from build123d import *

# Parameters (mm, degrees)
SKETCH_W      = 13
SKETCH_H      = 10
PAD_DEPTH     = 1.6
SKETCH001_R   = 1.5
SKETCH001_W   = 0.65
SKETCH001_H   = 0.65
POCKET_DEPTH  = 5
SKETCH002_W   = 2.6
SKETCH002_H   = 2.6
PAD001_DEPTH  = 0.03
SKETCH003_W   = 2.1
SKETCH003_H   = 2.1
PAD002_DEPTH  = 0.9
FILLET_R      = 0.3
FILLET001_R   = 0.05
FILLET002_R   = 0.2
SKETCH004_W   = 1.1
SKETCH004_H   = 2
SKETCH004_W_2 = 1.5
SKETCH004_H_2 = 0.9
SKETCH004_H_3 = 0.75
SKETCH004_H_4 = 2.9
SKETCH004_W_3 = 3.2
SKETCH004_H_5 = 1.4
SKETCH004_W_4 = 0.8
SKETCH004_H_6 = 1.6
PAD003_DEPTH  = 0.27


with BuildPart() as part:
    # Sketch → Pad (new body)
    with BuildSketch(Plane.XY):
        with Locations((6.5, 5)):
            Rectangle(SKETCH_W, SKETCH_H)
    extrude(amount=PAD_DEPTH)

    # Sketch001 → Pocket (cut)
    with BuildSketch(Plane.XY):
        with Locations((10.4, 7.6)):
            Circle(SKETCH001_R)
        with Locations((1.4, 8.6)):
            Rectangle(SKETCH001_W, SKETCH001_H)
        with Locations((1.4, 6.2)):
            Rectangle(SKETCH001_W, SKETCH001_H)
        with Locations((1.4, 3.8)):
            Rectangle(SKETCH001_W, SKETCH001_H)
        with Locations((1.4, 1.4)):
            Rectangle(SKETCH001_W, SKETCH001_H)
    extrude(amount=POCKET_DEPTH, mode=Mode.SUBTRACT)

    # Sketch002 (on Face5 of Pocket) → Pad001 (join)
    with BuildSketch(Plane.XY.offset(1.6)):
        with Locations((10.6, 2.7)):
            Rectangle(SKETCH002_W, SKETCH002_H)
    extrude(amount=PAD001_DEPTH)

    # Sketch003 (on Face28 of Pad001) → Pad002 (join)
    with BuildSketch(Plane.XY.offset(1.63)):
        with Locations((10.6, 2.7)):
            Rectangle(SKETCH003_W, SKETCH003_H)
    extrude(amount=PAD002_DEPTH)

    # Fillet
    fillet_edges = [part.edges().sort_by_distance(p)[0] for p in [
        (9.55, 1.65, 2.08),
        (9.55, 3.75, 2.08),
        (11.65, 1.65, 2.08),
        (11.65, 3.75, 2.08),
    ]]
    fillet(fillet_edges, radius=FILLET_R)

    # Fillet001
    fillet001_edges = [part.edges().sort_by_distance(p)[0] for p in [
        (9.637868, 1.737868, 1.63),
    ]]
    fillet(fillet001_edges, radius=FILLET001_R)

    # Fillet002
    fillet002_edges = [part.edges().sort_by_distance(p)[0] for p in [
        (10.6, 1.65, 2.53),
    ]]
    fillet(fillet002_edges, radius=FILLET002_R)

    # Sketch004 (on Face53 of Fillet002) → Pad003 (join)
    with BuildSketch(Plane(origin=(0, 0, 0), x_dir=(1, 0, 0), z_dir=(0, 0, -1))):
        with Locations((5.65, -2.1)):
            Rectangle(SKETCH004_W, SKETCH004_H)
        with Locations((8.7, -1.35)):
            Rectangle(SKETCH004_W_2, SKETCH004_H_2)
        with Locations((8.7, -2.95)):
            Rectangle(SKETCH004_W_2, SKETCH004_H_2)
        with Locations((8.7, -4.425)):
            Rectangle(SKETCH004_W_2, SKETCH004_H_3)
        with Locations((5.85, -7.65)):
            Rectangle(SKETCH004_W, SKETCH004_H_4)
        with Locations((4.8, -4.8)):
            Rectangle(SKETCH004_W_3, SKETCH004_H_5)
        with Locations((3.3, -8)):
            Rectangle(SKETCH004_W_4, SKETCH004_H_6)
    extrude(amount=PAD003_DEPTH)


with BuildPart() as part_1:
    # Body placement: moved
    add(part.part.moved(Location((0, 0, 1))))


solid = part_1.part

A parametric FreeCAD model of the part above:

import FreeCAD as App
import Part
import Sketcher


def edges_at(feature, points):
    """Names of the edges that pass closest to the given points."""
    edges = feature.Shape.Edges
    near = lambda p: min(range(len(edges)), key=lambda i: edges[i].distToShape(Part.Vertex(*p))[0])
    return sorted({f"Edge{near(p) + 1}" for p in points})


def add_polygon(sketch, points):
    """Adds a closed chain of lines whose ends are joined by coincident constraints."""
    first, n = sketch.GeometryCount, len(points)
    for a, b in zip(points, points[1:] + points[:1]):
        sketch.addGeometry(Part.LineSegment(App.Vector(*a, 0), App.Vector(*b, 0)), False)
    for i in range(n):
        sketch.addConstraint(Sketcher.Constraint("Coincident", first + i, 2, first + (i + 1) % n, 1))

doc = App.newDocument("Part")
body = doc.addObject("PartDesign::Body", "Body")

sketch1 = body.newObject("Sketcher::SketchObject", "Sketch")
sketch1.AttachmentSupport = (doc.getObject("XY_Plane"), [""])
sketch1.MapMode = "FlatFace"
add_polygon(sketch1, [(0, 10), (0, 0), (13, 0), (13, 10)])
sketch1.addConstraint([
    Sketcher.Constraint("Vertical", 0),
    Sketcher.Constraint("Horizontal", 1),
    Sketcher.Constraint("Vertical", 2),
    Sketcher.Constraint("Horizontal", 3),
    Sketcher.Constraint("Coincident", 0, 2, -1, 1),
    Sketcher.Constraint("DistanceX", 1, 1, 1, 2, 13.0),
    Sketcher.Constraint("DistanceY", 0, 2, 0, 1, 10.0),
])
pad1 = body.newObject("PartDesign::Pad", "Pad")
pad1.Profile = sketch1
pad1.Length = 1.6

sketch2 = body.newObject("Sketcher::SketchObject", "Sketch001")
sketch2.AttachmentSupport = (doc.getObject("XY_Plane"), [""])
sketch2.MapMode = "FlatFace"
sketch2.addGeometry(Part.Circle(App.Vector(10.4, 7.6, 0), App.Vector(0, 0, 1), 1.5), False)
add_polygon(sketch2, [(1.075, 8.925), (1.075, 8.275), (1.725, 8.275), (1.725, 8.925)])
add_polygon(sketch2, [(1.075, 6.525), (1.075, 5.875), (1.725, 5.875), (1.725, 6.525)])
add_polygon(sketch2, [(1.075, 4.125), (1.075, 3.475), (1.725, 3.475), (1.725, 4.125)])
add_polygon(sketch2, [(1.075, 1.725), (1.075, 1.075), (1.725, 1.075), (1.725, 1.725)])
sketch2.addConstraint([
    Sketcher.Constraint("Vertical", 1),
    Sketcher.Constraint("Horizontal", 2),
    Sketcher.Constraint("Vertical", 3),
    Sketcher.Constraint("Horizontal", 4),
    Sketcher.Constraint("Vertical", 5),
    Sketcher.Constraint("Horizontal", 6),
    Sketcher.Constraint("Vertical", 7),
    Sketcher.Constraint("Horizontal", 8),
    Sketcher.Constraint("Vertical", 9),
    Sketcher.Constraint("Horizontal", 10),
    Sketcher.Constraint("Vertical", 11),
    Sketcher.Constraint("Horizontal", 12),
    Sketcher.Constraint("Vertical", 13),
    Sketcher.Constraint("Horizontal", 14),
    Sketcher.Constraint("Vertical", 15),
    Sketcher.Constraint("Horizontal", 16),
    Sketcher.Constraint("Vertical", 4, 2, 5, 2),
    Sketcher.Constraint("Vertical", 3, 2, 6, 2),
    Sketcher.Constraint("Vertical", 8, 2, 9, 2),
    Sketcher.Constraint("Vertical", 7, 2, 10, 2),
    Sketcher.Constraint("Vertical", 12, 2, 13, 2),
    Sketcher.Constraint("Vertical", 11, 2, 14, 2),
    Sketcher.Constraint("Equal", 16, 1),
    Sketcher.Constraint("Equal", 3, 5),
    Sketcher.Constraint("Equal", 7, 9),
    Sketcher.Constraint("Equal", 11, 13),
    Sketcher.Constraint("Diameter", 0, 3.0),
    Sketcher.Constraint("DistanceX", 2, 1, 2, 2, 0.65),
    Sketcher.Constraint("DistanceX", -1, 1, 0, 3, 10.4),
    Sketcher.Constraint("DistanceY", -1, 1, 0, 3, 7.6),
    Sketcher.Constraint("DistanceY", 5, 2, 1, 2, 2.4),
    Sketcher.Constraint("DistanceY", 9, 2, 5, 2, 2.4),
    Sketcher.Constraint("DistanceY", 13, 2, 9, 2, 2.4),
    Sketcher.Constraint("DistanceX", -1, 1, 1, 2, 1.075),
    Sketcher.Constraint("DistanceY", -1, 1, 1, 2, 8.275),
])
pocket1 = body.newObject("PartDesign::Pocket", "Pocket")
pocket1.Profile = sketch2
pocket1.Length = 5
pocket1.Reversed = True

sketch3 = body.newObject("Sketcher::SketchObject", "Sketch002")
sketch3.AttachmentSupport = (doc.getObject("XY_Plane"), [""])
sketch3.MapMode = "FlatFace"
sketch3.AttachmentOffset = App.Placement(App.Vector(0, 0, 1.6), App.Rotation())
add_polygon(sketch3, [(9.3, 4), (9.3, 1.4), (11.9, 1.4), (11.9, 4)])
sketch3.addConstraint([
    Sketcher.Constraint("Vertical", 0),
    Sketcher.Constraint("Horizontal", 1),
    Sketcher.Constraint("Vertical", 2),
    Sketcher.Constraint("Horizontal", 3),
    Sketcher.Constraint("Equal", 3, 0),
    Sketcher.Constraint("DistanceX", 1, 1, 1, 2, 2.6),
    Sketcher.Constraint("DistanceY", -1, 1, 2, 2, 4.0),
    Sketcher.Constraint("DistanceX", -1, 1, 0, 2, 9.3),
])
pad2 = body.newObject("PartDesign::Pad", "Pad001")
pad2.Profile = sketch3
pad2.Length = 0.03

sketch4 = body.newObject("Sketcher::SketchObject", "Sketch003")
sketch4.AttachmentSupport = (doc.getObject("XY_Plane"), [""])
sketch4.MapMode = "FlatFace"
sketch4.AttachmentOffset = App.Placement(App.Vector(0, 0, 1.63), App.Rotation())
add_polygon(sketch4, [(9.55, 3.75), (9.55, 1.65), (11.65, 1.65), (11.65, 3.75)])
sketch4.addConstraint([
    Sketcher.Constraint("Vertical", 0),
    Sketcher.Constraint("Horizontal", 1),
    Sketcher.Constraint("Vertical", 2),
    Sketcher.Constraint("Horizontal", 3),
    Sketcher.Constraint("Equal", 3, 0),
    Sketcher.Constraint("DistanceX", 1, 1, 1, 2, 2.1),
    Sketcher.Constraint("DistanceX", -1, 1, 0, 2, 9.55),
    Sketcher.Constraint("DistanceY", -1, 1, 0, 2, 1.65),
])
pad3 = body.newObject("PartDesign::Pad", "Pad002")
pad3.Profile = sketch4
pad3.Length = 0.9
doc.recompute()

fillet = body.newObject("PartDesign::Fillet", "Fillet")
fillet.Base = (pad3, edges_at(pad3, [
    (9.55, 1.65, 2.08),
    (9.55, 3.75, 2.08),
    (11.65, 1.65, 2.08),
    (11.65, 3.75, 2.08),
]))
fillet.Radius = 0.3
doc.recompute()

fillet2 = body.newObject("PartDesign::Fillet", "Fillet001")
fillet2.Base = (fillet, edges_at(fillet, [(9.638, 1.738, 1.63)]))
fillet2.Radius = 0.05
doc.recompute()

fillet3 = body.newObject("PartDesign::Fillet", "Fillet002")
fillet3.Base = (fillet2, edges_at(fillet2, [(10.6, 1.65, 2.53)]))
fillet3.Radius = 0.2

sketch5 = body.newObject("Sketcher::SketchObject", "Sketch004")
sketch5.AttachmentSupport = (doc.getObject("XY_Plane"), [""])
sketch5.MapMode = "FlatFace"
add_polygon(sketch5, [(5.1, 1.1), (5.1, 3.1), (6.2, 3.1), (6.2, 1.1)])
add_polygon(sketch5, [(7.95, 0.9), (7.95, 1.8), (9.45, 1.8), (9.45, 0.9)])
add_polygon(sketch5, [(7.95, 2.5), (7.95, 3.4), (9.45, 3.4), (9.45, 2.5)])
add_polygon(sketch5, [(7.95, 4.05), (7.95, 4.8), (9.45, 4.8), (9.45, 4.05)])
add_polygon(sketch5, [(5.3, 6.2), (5.3, 9.1), (6.4, 9.1), (6.4, 6.2)])
add_polygon(sketch5, [(3.2, 4.1), (3.2, 5.5), (6.4, 5.5), (6.4, 4.1)])
add_polygon(sketch5, [(2.9, 7.2), (2.9, 8.8), (3.7, 8.8), (3.7, 7.2)])
sketch5.addConstraint([
    Sketcher.Constraint("Vertical", 0),
    Sketcher.Constraint("Horizontal", 1),
    Sketcher.Constraint("Vertical", 2),
    Sketcher.Constraint("Horizontal", 3),
    Sketcher.Constraint("Vertical", 4),
    Sketcher.Constraint("Horizontal", 5),
    Sketcher.Constraint("Vertical", 6),
    Sketcher.Constraint("Horizontal", 7),
    Sketcher.Constraint("Vertical", 8),
    Sketcher.Constraint("Horizontal", 9),
    Sketcher.Constraint("Vertical", 10),
    Sketcher.Constraint("Horizontal", 11),
    Sketcher.Constraint("Vertical", 12),
    Sketcher.Constraint("Horizontal", 13),
    Sketcher.Constraint("Vertical", 14),
    Sketcher.Constraint("Horizontal", 15),
    Sketcher.Constraint("Vertical", 16),
    Sketcher.Constraint("Horizontal", 17),
    Sketcher.Constraint("Vertical", 18),
    Sketcher.Constraint("Horizontal", 19),
    Sketcher.Constraint("Vertical", 20),
    Sketcher.Constraint("Horizontal", 21),
    Sketcher.Constraint("Vertical", 22),
    Sketcher.Constraint("Horizontal", 23),
    Sketcher.Constraint("Vertical", 24),
    Sketcher.Constraint("Horizontal", 25),
    Sketcher.Constraint("Vertical", 26),
    Sketcher.Constraint("Horizontal", 27),
    Sketcher.Constraint("Vertical", 7, 2, 8, 2),
    Sketcher.Constraint("Vertical", 6, 2, 9, 2),
    Sketcher.Constraint("Vertical", 11, 2, 12, 2),
    Sketcher.Constraint("Vertical", 10, 2, 13, 2),
    Sketcher.Constraint("Vertical", 18, 2, 21, 2),
    Sketcher.Constraint("Equal", 3, 17),
    Sketcher.Constraint("Equal", 6, 8),
    Sketcher.Constraint("DistanceY", 0, 1, 0, 2, 2.0),
    Sketcher.Constraint("DistanceX", 1, 1, 1, 2, 1.1),
    Sketcher.Constraint("DistanceX", 5, 1, 5, 2, 1.5),
    Sketcher.Constraint("DistanceX", 21, 1, 21, 2, 3.2),
    Sketcher.Constraint("DistanceX", 25, 1, 25, 2, 0.8),
    Sketcher.Constraint("DistanceY", 4, 1, 4, 2, 0.9),
    Sketcher.Constraint("DistanceY", 16, 1, 16, 2, 2.9),
    Sketcher.Constraint("DistanceY", 20, 1, 20, 2, 1.4),
    Sketcher.Constraint("DistanceY", 24, 1, 24, 2, 1.6),
    Sketcher.Constraint("DistanceY", 0, 2, 16, 2, 6.0),
    Sketcher.Constraint("DistanceX", 20, 2, 1, 2, 3.0),
    Sketcher.Constraint("DistanceY", 1, 2, 22, 2, 1.0),
    Sketcher.Constraint("DistanceY", 19, 2, 26, 2, 1.0),
    Sketcher.Constraint("DistanceY", 12, 1, 12, 2, 0.75),
    Sketcher.Constraint("DistanceX", -1, 1, 0, 2, 5.1),
    Sketcher.Constraint("DistanceY", -1, 1, 0, 2, 3.1),
    Sketcher.Constraint("DistanceY", -1, 1, 4, 2, 1.8),
    Sketcher.Constraint("DistanceY", -1, 1, 8, 2, 3.4),
    Sketcher.Constraint("DistanceY", -1, 1, 12, 2, 4.8),
    Sketcher.Constraint("DistanceX", -1, 1, 24, 2, 2.9),
    Sketcher.Constraint("DistanceX", -1, 1, 4, 2, 7.95),
])
pad4 = body.newObject("PartDesign::Pad", "Pad003")
pad4.Profile = sketch5
pad4.Length = 0.27
pad4.Reversed = True
body2 = doc.addObject("PartDesign::Body", "Body001")
doc.recompute()

body.Placement = App.Placement(App.Vector(0, 0, 1), App.Rotation(App.Vector(0, 0, 1), 0))
boolean = body2.newObject("PartDesign::Boolean", "Boolean")
boolean.Type = "Fuse"
boolean.addObjects([body])

doc.recompute()
